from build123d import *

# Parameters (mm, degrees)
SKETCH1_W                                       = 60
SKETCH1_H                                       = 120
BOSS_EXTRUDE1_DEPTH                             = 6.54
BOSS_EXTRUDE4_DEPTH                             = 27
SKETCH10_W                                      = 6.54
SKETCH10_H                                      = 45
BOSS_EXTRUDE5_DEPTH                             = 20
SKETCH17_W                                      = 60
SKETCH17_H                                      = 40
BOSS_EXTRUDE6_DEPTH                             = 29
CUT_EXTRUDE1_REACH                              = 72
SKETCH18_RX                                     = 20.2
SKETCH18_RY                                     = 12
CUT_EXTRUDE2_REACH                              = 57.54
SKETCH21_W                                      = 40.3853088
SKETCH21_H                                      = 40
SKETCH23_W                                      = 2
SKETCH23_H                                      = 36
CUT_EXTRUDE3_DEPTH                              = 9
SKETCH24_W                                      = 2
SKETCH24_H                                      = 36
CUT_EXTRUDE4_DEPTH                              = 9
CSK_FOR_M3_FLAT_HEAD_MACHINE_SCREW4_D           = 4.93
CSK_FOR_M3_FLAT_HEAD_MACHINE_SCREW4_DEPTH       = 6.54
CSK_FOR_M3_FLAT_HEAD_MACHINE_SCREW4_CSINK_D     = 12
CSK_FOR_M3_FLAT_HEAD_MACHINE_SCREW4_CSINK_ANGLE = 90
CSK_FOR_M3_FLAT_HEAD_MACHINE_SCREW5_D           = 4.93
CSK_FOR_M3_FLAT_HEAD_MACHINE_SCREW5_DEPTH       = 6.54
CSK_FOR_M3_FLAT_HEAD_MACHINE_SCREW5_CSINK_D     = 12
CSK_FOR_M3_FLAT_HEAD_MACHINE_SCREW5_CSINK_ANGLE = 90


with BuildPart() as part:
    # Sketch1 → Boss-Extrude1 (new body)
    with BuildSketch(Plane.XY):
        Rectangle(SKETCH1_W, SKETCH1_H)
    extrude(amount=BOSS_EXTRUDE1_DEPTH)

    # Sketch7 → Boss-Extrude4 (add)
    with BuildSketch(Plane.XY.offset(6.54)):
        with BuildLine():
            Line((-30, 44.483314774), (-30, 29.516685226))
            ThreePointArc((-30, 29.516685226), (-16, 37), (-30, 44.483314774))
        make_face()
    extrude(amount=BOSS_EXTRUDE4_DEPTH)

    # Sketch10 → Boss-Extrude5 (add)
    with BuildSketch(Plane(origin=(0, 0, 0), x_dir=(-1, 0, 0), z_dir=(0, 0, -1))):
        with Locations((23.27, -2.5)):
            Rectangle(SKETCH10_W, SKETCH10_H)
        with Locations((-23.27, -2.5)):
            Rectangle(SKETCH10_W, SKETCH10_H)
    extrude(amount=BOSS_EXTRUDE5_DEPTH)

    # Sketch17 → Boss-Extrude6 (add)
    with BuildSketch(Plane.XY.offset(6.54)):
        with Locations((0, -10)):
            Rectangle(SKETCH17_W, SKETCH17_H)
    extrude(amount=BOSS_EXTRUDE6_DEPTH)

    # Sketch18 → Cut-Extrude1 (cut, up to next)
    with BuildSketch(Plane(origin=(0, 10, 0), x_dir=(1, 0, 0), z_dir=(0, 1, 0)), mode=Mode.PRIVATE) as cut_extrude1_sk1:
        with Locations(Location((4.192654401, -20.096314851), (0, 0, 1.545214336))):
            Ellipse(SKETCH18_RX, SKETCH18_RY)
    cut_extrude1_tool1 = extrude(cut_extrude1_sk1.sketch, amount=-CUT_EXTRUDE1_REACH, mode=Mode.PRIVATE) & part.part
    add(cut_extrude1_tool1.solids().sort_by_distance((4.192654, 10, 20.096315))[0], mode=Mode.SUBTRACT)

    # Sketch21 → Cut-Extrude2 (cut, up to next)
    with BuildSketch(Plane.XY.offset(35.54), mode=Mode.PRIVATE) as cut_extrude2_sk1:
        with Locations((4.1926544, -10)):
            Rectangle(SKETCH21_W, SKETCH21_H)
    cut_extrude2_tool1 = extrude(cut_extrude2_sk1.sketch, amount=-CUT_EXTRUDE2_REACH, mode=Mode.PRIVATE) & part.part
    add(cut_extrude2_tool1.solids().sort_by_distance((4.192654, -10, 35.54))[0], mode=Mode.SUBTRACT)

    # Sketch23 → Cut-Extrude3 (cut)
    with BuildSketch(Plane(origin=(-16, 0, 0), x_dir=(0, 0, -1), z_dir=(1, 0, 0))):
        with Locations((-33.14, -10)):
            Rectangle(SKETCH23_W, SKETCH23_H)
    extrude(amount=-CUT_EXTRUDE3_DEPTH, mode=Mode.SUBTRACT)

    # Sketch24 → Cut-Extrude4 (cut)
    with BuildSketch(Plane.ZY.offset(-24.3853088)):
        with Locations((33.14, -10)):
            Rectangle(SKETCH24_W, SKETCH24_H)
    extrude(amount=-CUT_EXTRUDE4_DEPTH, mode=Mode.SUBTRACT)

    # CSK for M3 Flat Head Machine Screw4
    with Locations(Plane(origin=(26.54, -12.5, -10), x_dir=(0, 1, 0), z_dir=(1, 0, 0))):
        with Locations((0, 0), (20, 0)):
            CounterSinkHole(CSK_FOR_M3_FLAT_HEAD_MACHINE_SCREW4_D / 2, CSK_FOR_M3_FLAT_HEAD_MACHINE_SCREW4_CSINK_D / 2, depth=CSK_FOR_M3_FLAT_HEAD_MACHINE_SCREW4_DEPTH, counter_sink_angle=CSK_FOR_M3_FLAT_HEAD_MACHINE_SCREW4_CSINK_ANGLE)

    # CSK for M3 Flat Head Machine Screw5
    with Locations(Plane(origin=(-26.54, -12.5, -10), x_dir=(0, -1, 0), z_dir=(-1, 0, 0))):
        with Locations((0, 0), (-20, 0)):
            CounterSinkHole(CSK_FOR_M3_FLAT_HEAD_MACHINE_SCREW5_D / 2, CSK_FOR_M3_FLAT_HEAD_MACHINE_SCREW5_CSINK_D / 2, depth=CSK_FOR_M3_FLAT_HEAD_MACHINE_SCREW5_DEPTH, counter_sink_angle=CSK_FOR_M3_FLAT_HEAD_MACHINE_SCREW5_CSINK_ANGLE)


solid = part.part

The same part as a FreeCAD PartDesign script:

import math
import FreeCAD as App
import Part
import Sketcher
from FreeCAD import Vector

doc = App.newDocument("Part")
params = doc.addObject("Spreadsheet::Sheet", "Params")
for row, (alias, value) in enumerate([
    ("sketch1_width", "60 mm"),
    ("sketch1_height", "120 mm"),
    ("pad1_length", "6.54 mm"),
    ("sketch2_radius", "9 mm"),
    ("pad2_length", "27 mm"),
    ("sketch3_height", "45 mm"),
    ("sketch3_width", "6.54 mm"),
    ("pad3_length", "20 mm"),
    ("sketch4_width", "60 mm"),
    ("sketch4_height", "40 mm"),
    ("pad4_length", "29 mm"),
    ("sketch6_height", "40 mm"),
    ("sketch7_width", "36 mm"),
    ("sketch7_height", "2 mm"),
    ("pocket3_length", "9 mm"),
    ("sketch8_width", "36 mm"),
    ("sketch8_height", "2 mm"),
    ("pocket4_length", "9 mm"),
    ("sketch9_diameter", "4.93 mm"),
    ("hole_diameter", "4.93 mm"),
    ("hole_depth", "6.54 mm"),
    ("hole_csink_diameter", "12 mm"),
    ("sketch10_diameter", "4.93 mm"),
    ("hole2_diameter", "4.93 mm"),
    ("hole2_depth", "6.54 mm"),
    ("hole2_csink_diameter", "12 mm"),
], start=1):
    params.set(f"A{row}", alias)
    params.set(f"B{row}", "=" + value)
    params.setAlias(f"B{row}", alias)

body = doc.addObject("PartDesign::Body", "Body")

# Sketch on XY plane
sketch1 = body.newObject("Sketcher::SketchObject", "Sketch")
sketch1.AttachmentSupport = (doc.getObject("XY_Plane"), [""])
sketch1.MapMode = "FlatFace"
sketch1.addGeometry(Part.LineSegment(Vector(-30, 60, 0), Vector(-30, -60, 0)), False)
sketch1.addGeometry(Part.LineSegment(Vector(-30, -60, 0), Vector(30, -60, 0)), False)
sketch1.addGeometry(Part.LineSegment(Vector(30, -60, 0), Vector(30, 60, 0)), False)
sketch1.addGeometry(Part.LineSegment(Vector(30, 60, 0), Vector(-30, 60, 0)), False)
sketch1.addConstraint(Sketcher.Constraint("Coincident", 0, 2, 1, 1))
sketch1.addConstraint(Sketcher.Constraint("Coincident", 1, 2, 2, 1))
sketch1.addConstraint(Sketcher.Constraint("Coincident", 2, 2, 3, 1))
sketch1.addConstraint(Sketcher.Constraint("Coincident", 3, 2, 0, 1))
sketch1.addConstraint(Sketcher.Constraint("Vertical", 0))
sketch1.addConstraint(Sketcher.Constraint("Horizontal", 1))
sketch1.addConstraint(Sketcher.Constraint("Vertical", 2))
sketch1.addConstraint(Sketcher.Constraint("Horizontal", 3))
sketch1.addConstraint(Sketcher.Constraint("Symmetric", 0, 2, 2, 2, -1, 1))
sketch1.addConstraint(Sketcher.Constraint("DistanceX", 1, 1, 1, 2, 60.0))
sketch1.addConstraint(Sketcher.Constraint("DistanceY", 0, 2, 0, 1, 120.0))
sketch1.setExpression("Constraints[9]", "Params.sketch1_width")
sketch1.setExpression("Constraints[10]", "Params.sketch1_height")
pad1 = body.newObject("PartDesign::Pad", "Pad")
pad1.Profile = sketch1
pad1.setExpression("Length", "Params.pad1_length")

# Sketch on XY plane
sketch2 = body.newObject("Sketcher::SketchObject", "Sketch001")
sketch2.AttachmentSupport = (doc.getObject("XY_Plane"), [""])
sketch2.MapMode = "FlatFace"
sketch2.AttachmentOffset = App.Placement(Vector(0, 0, 6.54), App.Rotation())
sketch2.addGeometry(Part.LineSegment(Vector(-30, 44, 0), Vector(-30, 30, 0)), False)
sketch2.addGeometry(Part.ArcOfCircle(Part.Circle(Vector(-25, 37, 0), Vector(0, 0, 1), 9), math.radians(-124), math.radians(124)), False)
sketch2.addConstraint(Sketcher.Constraint("Coincident", 0, 1, 1, 2))
sketch2.addConstraint(Sketcher.Constraint("Coincident", 1, 1, 0, 2))
sketch2.addConstraint(Sketcher.Constraint("Vertical", 0))
sketch2.addConstraint(Sketcher.Constraint("Radius", 1, 9.0))
sketch2.addConstraint(Sketcher.Constraint("DistanceX", 1, 3, -1, 1, 25.0))
sketch2.addConstraint(Sketcher.Constraint("DistanceY", -1, 1, 1, 3, 37.0))
sketch2.addConstraint(Sketcher.Constraint("DistanceX", 0, 1, -1, 1, 30.0))
sketch2.setExpression("Constraints[3]", "Params.sketch2_radius")
pad2 = body.newObject("PartDesign::Pad", "Pad001")
pad2.Profile = sketch2
pad2.setExpression("Length", "Params.pad2_length")

# Sketch on XY plane
sketch3 = body.newObject("Sketcher::SketchObject", "Sketch002")
sketch3.AttachmentSupport = (doc.getObject("XY_Plane"), [""])
sketch3.MapMode = "FlatFace"
sketch3.addGeometry(Part.LineSegment(Vector(-20, 20, 0), Vector(-20, -25, 0)), False)
sketch3.addGeometry(Part.LineSegment(Vector(-20, -25, 0), Vector(-27, -25, 0)), False)
sketch3.addGeometry(Part.LineSegment(Vector(-27, -25, 0), Vector(-27, 20, 0)), False)
sketch3.addGeometry(Part.LineSegment(Vector(-27, 20, 0), Vector(-20, 20, 0)), False)
sketch3.addGeometry(Part.LineSegment(Vector(27, 20, 0), Vector(27, -25, 0)), False)
sketch3.addGeometry(Part.LineSegment(Vector(27, -25, 0), Vector(20, -25, 0)), False)
sketch3.addGeometry(Part.LineSegment(Vector(20, -25, 0), Vector(20, 20, 0)), False)
sketch3.addGeometry(Part.LineSegment(Vector(20, 20, 0), Vector(27, 20, 0)), False)
sketch3.addConstraint(Sketcher.Constraint("Coincident", 0, 2, 1, 1))
sketch3.addConstraint(Sketcher.Constraint("Coincident", 1, 2, 2, 1))
sketch3.addConstraint(Sketcher.Constraint("Coincident", 2, 2, 3, 1))
sketch3.addConstraint(Sketcher.Constraint("Coincident", 3, 2, 0, 1))
sketch3.addConstraint(Sketcher.Constraint("Coincident", 4, 2, 5, 1))
sketch3.addConstraint(Sketcher.Constraint("Coincident", 5, 2, 6, 1))
sketch3.addConstraint(Sketcher.Constraint("Coincident", 6, 2, 7, 1))
sketch3.addConstraint(Sketcher.Constraint("Coincident", 7, 2, 4, 1))
sketch3.addConstraint(Sketcher.Constraint("Vertical", 0))
sketch3.addConstraint(Sketcher.Constraint("Horizontal", 1))
sketch3.addConstraint(Sketcher.Constraint("Vertical", 2))
sketch3.addConstraint(Sketcher.Constraint("Horizontal", 3))
sketch3.addConstraint(Sketcher.Constraint("Vertical", 4))
sketch3.addConstraint(Sketcher.Constraint("Horizontal", 5))
sketch3.addConstraint(Sketcher.Constraint("Vertical", 6))
sketch3.addConstraint(Sketcher.Constraint("Horizontal", 7))
sketch3.addConstraint(Sketcher.Constraint("Symmetric", 1, 2, 4, 2, -2))
sketch3.addConstraint(Sketcher.Constraint("Symmetric", 3, 2, 6, 2, -2))
sketch3.addConstraint(Sketcher.Constraint("DistanceY", 0, 2, 0, 1, 45.0))
sketch3.addConstraint(Sketcher.Constraint("DistanceX", 0, 2, -1, 1, 20.0))
sketch3.addConstraint(Sketcher.Constraint("DistanceY", 0, 2, -1, 1, 25.0))
sketch3.addConstraint(Sketcher.Constraint("DistanceX", 1, 2, 1, 1, 6.54))
sketch3.setExpression("Constraints[18]", "Params.sketch3_height")
sketch3.setExpression("Constraints[21]", "Params.sketch3_width")
pad3 = body.newObject("PartDesign::Pad", "Pad002")
pad3.Profile = sketch3
pad3.setExpression("Length", "Params.pad3_length")
pad3.Reversed = True

# Sketch on XY plane
sketch4 = body.newObject("Sketcher::SketchObject", "Sketch003")
sketch4.AttachmentSupport = (doc.getObject("XY_Plane"), [""])
sketch4.MapMode = "FlatFace"
sketch4.AttachmentOffset = App.Placement(Vector(0, 0, 6.54), App.Rotation())
sketch4.addGeometry(Part.LineSegment(Vector(-30, 10, 0), Vector(-30, -30, 0)), False)
sketch4.addGeometry(Part.LineSegment(Vector(-30, -30, 0), Vector(30, -30, 0)), False)
sketch4.addGeometry(Part.LineSegment(Vector(30, -30, 0), Vector(30, 10, 0)), False)
sketch4.addGeometry(Part.LineSegment(Vector(30, 10, 0), Vector(-30, 10, 0)), False)
sketch4.addConstraint(Sketcher.Constraint("Coincident", 0, 2, 1, 1))
sketch4.addConstraint(Sketcher.Constraint("Coincident", 1, 2, 2, 1))
sketch4.addConstraint(Sketcher.Constraint("Coincident", 2, 2, 3, 1))
sketch4.addConstraint(Sketcher.Constraint("Coincident", 3, 2, 0, 1))
sketch4.addConstraint(Sketcher.Constraint("Vertical", 0))
sketch4.addConstraint(Sketcher.Constraint("Horizontal", 1))
sketch4.addConstraint(Sketcher.Constraint("Vertical", 2))
sketch4.addConstraint(Sketcher.Constraint("Horizontal", 3))
sketch4.addConstraint(Sketcher.Constraint("DistanceX", 1, 1, 1, 2, 60.0))
sketch4.addConstraint(Sketcher.Constraint("DistanceY", 0, 2, 0, 1, 40.0))
sketch4.addConstraint(Sketcher.Constraint("DistanceX", 0, 2, -1, 1, 30.0))
sketch4.addConstraint(Sketcher.Constraint("DistanceY", 0, 2, -1, 1, 30.0))
sketch4.setExpression("Constraints[8]", "Params.sketch4_width")
sketch4.setExpression("Constraints[9]", "Params.sketch4_height")
pad4 = body.newObject("PartDesign::Pad", "Pad003")
pad4.Profile = sketch4
pad4.setExpression("Length", "Params.pad4_length")

# Sketch on XZ plane
sketch5 = body.newObject("Sketcher::SketchObject", "Sketch004")
sketch5.AttachmentSupport = (doc.getObject("XZ_Plane"), [""])
sketch5.MapMode = "FlatFace"
sketch5.AttachmentOffset = App.Placement(Vector(0, 0, -10), App.Rotation())
sketch5.addGeometry(Part.Ellipse(Vector(24.385309, 19.551606, 0), Vector(4.516244, 32.091951, 0), Vector(4.192654, 20.096315, 0)), False)
sketch5.addConstraint(Sketcher.Constraint("Block", 0))
pocket1 = body.newObject("PartDesign::Pocket", "Pocket")
pocket1.Profile = sketch5
pocket1.Type = "UpToFirst"
pocket1.Reversed = True

# Sketch on XY plane
sketch6 = body.newObject("Sketcher::SketchObject", "Sketch005")
sketch6.AttachmentSupport = (doc.getObject("XY_Plane"), [""])
sketch6.MapMode = "FlatFace"
sketch6.AttachmentOffset = App.Placement(Vector(0, 0, 35.54), App.Rotation())
sketch6.addGeometry(Part.LineSegment(Vector(-16, 10, 0), Vector(-16, -30, 0)), False)
sketch6.addGeometry(Part.LineSegment(Vector(-16, -30, 0), Vector(24, -30, 0)), False)
sketch6.addGeometry(Part.LineSegment(Vector(24, -30, 0), Vector(24, 10, 0)), False)
sketch6.addGeometry(Part.LineSegment(Vector(24, 10, 0), Vector(-16, 10, 0)), False)
sketch6.addConstraint(Sketcher.Constraint("Coincident", 0, 2, 1, 1))
sketch6.addConstraint(Sketcher.Constraint("Coincident", 1, 2, 2, 1))
sketch6.addConstraint(Sketcher.Constraint("Coincident", 2, 2, 3, 1))
sketch6.addConstraint(Sketcher.Constraint("Coincident", 3, 2, 0, 1))
sketch6.addConstraint(Sketcher.Constraint("Vertical", 0))
sketch6.addConstraint(Sketcher.Constraint("Horizontal", 1))
sketch6.addConstraint(Sketcher.Constraint("Vertical", 2))
sketch6.addConstraint(Sketcher.Constraint("Horizontal", 3))
sketch6.addConstraint(Sketcher.Constraint("DistanceY", 0, 2, 0, 1, 40.0))
sketch6.addConstraint(Sketcher.Constraint("DistanceX", 0, 2, -1, 1, 16.0))
sketch6.addConstraint(Sketcher.Constraint("DistanceY", 0, 2, -1, 1, 30.0))
sketch6.addConstraint(Sketcher.Constraint("DistanceX", 1, 1, 1, 2, 40.385309))
sketch6.setExpression("Constraints[8]", "Params.sketch6_height")
pocket2 = body.newObject("PartDesign::Pocket", "Pocket001")
pocket2.Profile = sketch6
pocket2.Type = "UpToFirst"

# Sketch on YZ plane
sketch7 = body.newObject("Sketcher::SketchObject", "Sketch006")
sketch7.AttachmentSupport = (doc.getObject("YZ_Plane"), [""])
sketch7.MapMode = "FlatFace"
sketch7.AttachmentOffset = App.Placement(Vector(0, 0, -16), App.Rotation())
sketch7.addGeometry(Part.LineSegment(Vector(8, 34.1, 0), Vector(-28, 34.1, 0)), False)
sketch7.addGeometry(Part.LineSegment(Vector(-28, 34.1, 0), Vector(-28, 32.1, 0)), False)
sketch7.addGeometry(Part.LineSegment(Vector(-28, 32.1, 0), Vector(8, 32.1, 0)), False)
sketch7.addGeometry(Part.LineSegment(Vector(8, 32.1, 0), Vector(8, 34.1, 0)), False)
sketch7.addConstraint(Sketcher.Constraint("Coincident", 0, 2, 1, 1))
sketch7.addConstraint(Sketcher.Constraint("Coincident", 1, 2, 2, 1))
sketch7.addConstraint(Sketcher.Constraint("Coincident", 2, 2, 3, 1))
sketch7.addConstraint(Sketcher.Constraint("Coincident", 3, 2, 0, 1))
sketch7.addConstraint(Sketcher.Constraint("Horizontal", 0))
sketch7.addConstraint(Sketcher.Constraint("Vertical", 1))
sketch7.addConstraint(Sketcher.Constraint("Horizontal", 2))
sketch7.addConstraint(Sketcher.Constraint("Vertical", 3))
sketch7.addConstraint(Sketcher.Constraint("DistanceX", 0, 2, 0, 1, 36.0))
sketch7.addConstraint(Sketcher.Constraint("DistanceY", 1, 2, 1, 1, 2.0))
sketch7.addConstraint(Sketcher.Constraint("DistanceX", 0, 2, -1, 1, 28.0))
sketch7.addConstraint(Sketcher.Constraint("DistanceY", -1, 1, 0, 2, 34.14))
sketch7.setExpression("Constraints[8]", "Params.sketch7_width")
sketch7.setExpression("Constraints[9]", "Params.sketch7_height")
pocket3 = body.newObject("PartDesign::Pocket", "Pocket002")
pocket3.Profile = sketch7
pocket3.setExpression("Length", "Params.pocket3_length")

# Sketch on YZ plane
sketch8 = body.newObject("Sketcher::SketchObject", "Sketch007")
sketch8.AttachmentSupport = (doc.getObject("YZ_Plane"), [""])
sketch8.MapMode = "FlatFace"
sketch8.AttachmentOffset = App.Placement(Vector(0, 0, 24.385309), App.Rotation())
sketch8.addGeometry(Part.LineSegment(Vector(8, 32.1, 0), Vector(-28, 32.1, 0)), False)
sketch8.addGeometry(Part.LineSegment(Vector(-28, 32.1, 0), Vector(-28, 34.1, 0)), False)
sketch8.addGeometry(Part.LineSegment(Vector(-28, 34.1, 0), Vector(8, 34.1, 0)), False)
sketch8.addGeometry(Part.LineSegment(Vector(8, 34.1, 0), Vector(8, 32.1, 0)), False)
sketch8.addConstraint(Sketcher.Constraint("Coincident", 0, 2, 1, 1))
sketch8.addConstraint(Sketcher.Constraint("Coincident", 1, 2, 2, 1))
sketch8.addConstraint(Sketcher.Constraint("Coincident", 2, 2, 3, 1))
sketch8.addConstraint(Sketcher.Constraint("Coincident", 3, 2, 0, 1))
sketch8.addConstraint(Sketcher.Constraint("Horizontal", 0))
sketch8.addConstraint(Sketcher.Constraint("Vertical", 1))
sketch8.addConstraint(Sketcher.Constraint("Horizontal", 2))
sketch8.addConstraint(Sketcher.Constraint("Vertical", 3))
sketch8.addConstraint(Sketcher.Constraint("DistanceX", 0, 2, 0, 1, 36.0))
sketch8.addConstraint(Sketcher.Constraint("DistanceY", 1, 1, 1, 2, 2.0))
sketch8.addConstraint(Sketcher.Constraint("DistanceX", 0, 2, -1, 1, 28.0))
sketch8.addConstraint(Sketcher.Constraint("DistanceY", -1, 1, 0, 2, 32.14))
sketch8.setExpression("Constraints[8]", "Params.sketch8_width")
sketch8.setExpression("Constraints[9]", "Params.sketch8_height")
pocket4 = body.newObject("PartDesign::Pocket", "Pocket003")
pocket4.Profile = sketch8
pocket4.setExpression("Length", "Params.pocket4_length")
pocket4.Reversed = True

# Sketch on YZ plane
sketch9 = body.newObject("Sketcher::SketchObject", "Sketch008")
sketch9.AttachmentSupport = (doc.getObject("YZ_Plane"), [""])
sketch9.MapMode = "FlatFace"
sketch9.AttachmentOffset = App.Placement(Vector(0, 0, 26.54), App.Rotation())
sketch9.addGeometry(Part.Circle(Vector(-12.5, -10, 0), Vector(0, 0, 1), 2.5), False)
sketch9.addGeometry(Part.Circle(Vector(7.5, -10, 0), Vector(0, 0, 1), 2.5), False)
sketch9.addConstraint(Sketcher.Constraint("Equal", 0, 1))
sketch9.addConstraint(Sketcher.Constraint("Horizontal", 0, 3, 1, 3))
sketch9.addConstraint(Sketcher.Constraint("Diameter", 0, 4.93))
sketch9.addConstraint(Sketcher.Constraint("DistanceY", 0, 3, -1, 1, 10.0))
sketch9.addConstraint(Sketcher.Constraint("DistanceX", 0, 3, 1, 3, 20.0))
sketch9.addConstraint(Sketcher.Constraint("DistanceX", 0, 3, -1, 1, 12.5))
sketch9.setExpression("Constraints[2]", "Params.sketch9_diameter")
doc.recompute()
hole = body.newObject("PartDesign::Hole", "Hole")
hole.Profile = sketch9
hole.ThreadType = "None"
hole.setExpression("Diameter", "Params.hole_diameter")
hole.DepthType = "Dimension"
hole.setExpression("Depth", "Params.hole_depth")
hole.DrillPoint = "Flat"
hole.HoleCutType = "Countersink"
hole.setExpression("HoleCutDiameter", "Params.hole_csink_diameter")
hole.HoleCutCountersinkAngle = 90

# Sketch on YZ plane
sketch10 = body.newObject("Sketcher::SketchObject", "Sketch009")
sketch10.AttachmentSupport = (doc.getObject("YZ_Plane"), [""])
sketch10.MapMode = "FlatFace"
sketch10.AttachmentOffset = App.Placement(Vector(0, 0, -26.54), App.Rotation())
sketch10.addGeometry(Part.Circle(Vector(-12.5, -10, 0), Vector(0, 0, 1), 2.5), False)
sketch10.addGeometry(Part.Circle(Vector(7.5, -10, 0), Vector(0, 0, 1), 2.5), False)
sketch10.addConstraint(Sketcher.Constraint("Equal", 0, 1))
sketch10.addConstraint(Sketcher.Constraint("Horizontal", 0, 3, 1, 3))
sketch10.addConstraint(Sketcher.Constraint("Diameter", 0, 4.93))
sketch10.addConstraint(Sketcher.Constraint("DistanceY", 0, 3, -1, 1, 10.0))
sketch10.addConstraint(Sketcher.Constraint("DistanceX", 0, 3, 1, 3, 20.0))
sketch10.addConstraint(Sketcher.Constraint("DistanceX", 0, 3, -1, 1, 12.5))
sketch10.setExpression("Constraints[2]", "Params.sketch10_diameter")
doc.recompute()
hole2 = body.newObject("PartDesign::Hole", "Hole001")
hole2.Profile = sketch10
hole2.ThreadType = "None"
hole2.setExpression("Diameter", "Params.hole2_diameter")
hole2.DepthType = "Dimension"
hole2.setExpression("Depth", "Params.hole2_depth")
hole2.DrillPoint = "Flat"
hole2.HoleCutType = "Countersink"
hole2.setExpression("HoleCutDiameter", "Params.hole2_csink_diameter")
hole2.HoleCutCountersinkAngle = 90
hole2.Reversed = True

doc.recompute()
